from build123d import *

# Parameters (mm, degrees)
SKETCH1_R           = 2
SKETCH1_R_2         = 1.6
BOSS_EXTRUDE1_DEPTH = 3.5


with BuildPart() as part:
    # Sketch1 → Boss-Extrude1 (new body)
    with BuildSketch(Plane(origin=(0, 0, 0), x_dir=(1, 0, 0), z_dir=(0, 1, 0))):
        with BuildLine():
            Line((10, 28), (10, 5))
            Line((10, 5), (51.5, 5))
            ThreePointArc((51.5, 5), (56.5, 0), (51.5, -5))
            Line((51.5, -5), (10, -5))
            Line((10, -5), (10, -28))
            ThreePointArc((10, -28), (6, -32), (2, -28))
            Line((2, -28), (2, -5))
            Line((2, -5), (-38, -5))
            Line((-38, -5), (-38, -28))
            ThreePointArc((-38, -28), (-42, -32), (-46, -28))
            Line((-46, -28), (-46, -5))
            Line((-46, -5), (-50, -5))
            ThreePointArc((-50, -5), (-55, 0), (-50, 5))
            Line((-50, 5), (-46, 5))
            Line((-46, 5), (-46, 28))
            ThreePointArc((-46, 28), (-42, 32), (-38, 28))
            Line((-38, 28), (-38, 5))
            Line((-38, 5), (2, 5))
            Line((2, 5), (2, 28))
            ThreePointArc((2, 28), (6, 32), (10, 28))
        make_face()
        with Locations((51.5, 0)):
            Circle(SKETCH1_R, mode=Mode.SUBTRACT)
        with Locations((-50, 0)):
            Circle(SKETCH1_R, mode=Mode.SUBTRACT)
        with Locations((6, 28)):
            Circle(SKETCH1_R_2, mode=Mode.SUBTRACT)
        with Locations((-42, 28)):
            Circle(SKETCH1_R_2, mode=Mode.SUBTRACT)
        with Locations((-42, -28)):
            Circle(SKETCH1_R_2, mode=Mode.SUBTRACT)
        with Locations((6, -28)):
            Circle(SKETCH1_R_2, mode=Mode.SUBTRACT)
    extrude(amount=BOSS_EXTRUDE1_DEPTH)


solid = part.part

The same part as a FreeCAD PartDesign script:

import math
import FreeCAD as App
import Part
import Sketcher
from FreeCAD import Vector
Q = App.Units.Quantity

doc = App.newDocument("Part")
body = doc.addObject("PartDesign::Body", "Body")

sketch1 = doc.addObject("Sketcher::SketchObject", "Sketch")
body.addObject(sketch1)
sketch1.AttachmentSupport = (doc.XZ_Plane, [""])
sketch1.MapMode = "FlatFace"
sketch1.addGeometry(Part.LineSegment(Vector(10, -5, 0), Vector(10, -28, 0)), False)
sketch1.addGeometry(Part.ArcOfCircle(Part.Circle(Vector(6, -28, 0), Vector(0, 0, 1), 4), math.radians(180), math.radians(360)), False)
sketch1.addGeometry(Part.LineSegment(Vector(2, -28, 0), Vector(2, -5, 0)), False)
sketch1.addGeometry(Part.LineSegment(Vector(2, -5, 0), Vector(-38, -5, 0)), False)
sketch1.addGeometry(Part.LineSegment(Vector(-38, -5, 0), Vector(-38, -28, 0)), False)
sketch1.addGeometry(Part.ArcOfCircle(Part.Circle(Vector(-42, -28, 0), Vector(0, 0, 1), 4), math.radians(180), math.radians(360)), False)
sketch1.addGeometry(Part.LineSegment(Vector(-46, -28, 0), Vector(-46, -5, 0)), False)
sketch1.addGeometry(Part.LineSegment(Vector(-46, -5, 0), Vector(-50, -5, 0)), False)
sketch1.addGeometry(Part.ArcOfCircle(Part.Circle(Vector(-50, 0, 0), Vector(0, 0, 1), 5), math.radians(90), math.radians(270)), False)
sketch1.addGeometry(Part.LineSegment(Vector(-50, 5, 0), Vector(-46, 5, 0)), False)
sketch1.addGeometry(Part.LineSegment(Vector(-46, 5, 0), Vector(-46, 28, 0)), False)
sketch1.addGeometry(Part.ArcOfCircle(Part.Circle(Vector(-42, 28, 0), Vector(0, 0, 1), 4), math.radians(0), math.radians(180)), False)
sketch1.addGeometry(Part.LineSegment(Vector(-38, 28, 0), Vector(-38, 5, 0)), False)
sketch1.addGeometry(Part.LineSegment(Vector(-38, 5, 0), Vector(2, 5, 0)), False)
sketch1.addGeometry(Part.LineSegment(Vector(2, 5, 0), Vector(2, 28, 0)), False)
sketch1.addGeometry(Part.ArcOfCircle(Part.Circle(Vector(6, 28, 0), Vector(0, 0, 1), 4), math.radians(0), math.radians(180)), False)
sketch1.addGeometry(Part.LineSegment(Vector(10, 28, 0), Vector(10, 5, 0)), False)
sketch1.addGeometry(Part.LineSegment(Vector(10, 5, 0), Vector(51.5, 5, 0)), False)
sketch1.addGeometry(Part.ArcOfCircle(Part.Circle(Vector(51.5, 0, 0), Vector(0, 0, 1), 5), math.radians(-90), math.radians(90)), False)
sketch1.addGeometry(Part.LineSegment(Vector(51.5, -5, 0), Vector(10, -5, 0)), False)
sketch1.addGeometry(Part.Circle(Vector(6, 28, 0), Vector(0, 0, 1), 1.6), False)
sketch1.addGeometry(Part.Circle(Vector(51.5, 0, 0), Vector(0, 0, 1), 2), False)
sketch1.addGeometry(Part.Circle(Vector(-42, 28, 0), Vector(0, 0, 1), 1.6), False)
sketch1.addGeometry(Part.Circle(Vector(-50, 0, 0), Vector(0, 0, 1), 2), False)
sketch1.addGeometry(Part.Circle(Vector(6, -28, 0), Vector(0, 0, 1), 1.6), False)
sketch1.addGeometry(Part.Circle(Vector(-42, -28, 0), Vector(0, 0, 1), 1.6), False)
sketch1.addConstraint(Sketcher.Constraint("Tangent", 0, 2, 1, 2))
sketch1.addConstraint(Sketcher.Constraint("Tangent", 1, 1, 2, 1))
sketch1.addConstraint(Sketcher.Constraint("Coincident", 2, 2, 3, 1))
sketch1.addConstraint(Sketcher.Constraint("Coincident", 3, 2, 4, 1))
sketch1.addConstraint(Sketcher.Constraint("Tangent", 4, 2, 5, 2))
sketch1.addConstraint(Sketcher.Constraint("Tangent", 5, 1, 6, 1))
sketch1.addConstraint(Sketcher.Constraint("Coincident", 6, 2, 7, 1))
sketch1.addConstraint(Sketcher.Constraint("Tangent", 7, 2, 8, 2))
sketch1.addConstraint(Sketcher.Constraint("Tangent", 8, 1, 9, 1))
sketch1.addConstraint(Sketcher.Constraint("Coincident", 9, 2, 10, 1))
sketch1.addConstraint(Sketcher.Constraint("Tangent", 10, 2, 11, 2))
sketch1.addConstraint(Sketcher.Constraint("Tangent", 11, 1, 12, 1))
sketch1.addConstraint(Sketcher.Constraint("Coincident", 12, 2, 13, 1))
sketch1.addConstraint(Sketcher.Constraint("Coincident", 13, 2, 14, 1))
sketch1.addConstraint(Sketcher.Constraint("Tangent", 14, 2, 15, 2))
sketch1.addConstraint(Sketcher.Constraint("Tangent", 15, 1, 16, 1))
sketch1.addConstraint(Sketcher.Constraint("Coincident", 16, 2, 17, 1))
sketch1.addConstraint(Sketcher.Constraint("Tangent", 17, 2, 18, 2))
sketch1.addConstraint(Sketcher.Constraint("Tangent", 18, 1, 19, 1))
sketch1.addConstraint(Sketcher.Constraint("Coincident", 19, 2, 0, 1))
sketch1.addConstraint(Sketcher.Constraint("Vertical", 0))
sketch1.addConstraint(Sketcher.Constraint("Vertical", 2))
sketch1.addConstraint(Sketcher.Constraint("Horizontal", 3))
sketch1.addConstraint(Sketcher.Constraint("Vertical", 4))
sketch1.addConstraint(Sketcher.Constraint("Vertical", 6))
sketch1.addConstraint(Sketcher.Constraint("Horizontal", 7))
sketch1.addConstraint(Sketcher.Constraint("Horizontal", 9))
sketch1.addConstraint(Sketcher.Constraint("Vertical", 10))
sketch1.addConstraint(Sketcher.Constraint("Vertical", 12))
sketch1.addConstraint(Sketcher.Constraint("Horizontal", 13))
sketch1.addConstraint(Sketcher.Constraint("Vertical", 14))
sketch1.addConstraint(Sketcher.Constraint("Vertical", 16))
sketch1.addConstraint(Sketcher.Constraint("Horizontal", 17))
sketch1.addConstraint(Sketcher.Constraint("Horizontal", 19))
sketch1.addConstraint(Sketcher.Constraint("Coincident", 20, 3, 15, 3))
sketch1.addConstraint(Sketcher.Constraint("Coincident", 21, 3, 18, 3))
sketch1.addConstraint(Sketcher.Constraint("Coincident", 22, 3, 11, 3))
sketch1.addConstraint(Sketcher.Constraint("Coincident", 23, 3, 8, 3))
sketch1.addConstraint(Sketcher.Constraint("Coincident", 24, 3, 1, 3))
sketch1.addConstraint(Sketcher.Constraint("Coincident", 25, 3, 5, 3))
sketch1.addConstraint(Sketcher.Constraint("Equal", 1, 5))
sketch1.addConstraint(Sketcher.Constraint("Equal", 5, 11))
sketch1.addConstraint(Sketcher.Constraint("Equal", 11, 15))
sketch1.addConstraint(Sketcher.Constraint("Equal", 8, 18))
sketch1.addConstraint(Sketcher.Constraint("Equal", 20, 22))
sketch1.addConstraint(Sketcher.Constraint("Equal", 21, 23))
sketch1.addConstraint(Sketcher.Constraint("Equal", 22, 24))
sketch1.addConstraint(Sketcher.Constraint("Equal", 24, 25))
sketch1.addConstraint(Sketcher.Constraint("Symmetric", 5, 3, 11, 3, -1))
sketch1.addConstraint(Sketcher.Constraint("Symmetric", 1, 3, 15, 3, -1))
sketch1.addConstraint(Sketcher.Constraint("PointOnObject", 8, 3, -1))
sketch1.addConstraint(Sketcher.Constraint("PointOnObject", 18, 3, -1))
sketch1.addConstraint(Sketcher.Constraint("Horizontal", 1, 3, 5, 3))
sketch1.addConstraint(Sketcher.Constraint("Horizontal", 3, 2, 6, 2))
sketch1.addConstraint(Sketcher.Constraint("Horizontal", 9, 2, 12, 2))
sketch1.addConstraint(Sketcher.Constraint("Diameter", 21, Q("4 mm")))
sketch1.addConstraint(Sketcher.Constraint("Radius", 1, Q("4 mm")))
sketch1.addConstraint(Sketcher.Constraint("Radius", 8, Q("5 mm")))
sketch1.addConstraint(Sketcher.Constraint("Diameter", 20, Q("3.2 mm")))
sketch1.addConstraint(Sketcher.Constraint("DistanceX", 3, 2, 3, 1, Q("40 mm")))
sketch1.addConstraint(Sketcher.Constraint("DistanceX", 7, 2, 7, 1, Q("4 mm")))
sketch1.addConstraint(Sketcher.Constraint("DistanceY", 0, 2, 0, 1, Q("23 mm")))
sketch1.addConstraint(Sketcher.Constraint("DistanceX", 17, 1, 17, 2, Q("41.5 mm")))
sketch1.addConstraint(Sketcher.Constraint("DistanceX", -1, 1, 1, 3, Q("6 mm")))
pad1 = doc.addObject("PartDesign::Pad", "Pad")
body.addObject(pad1)
pad1.Profile = sketch1
pad1.Length = 3.5
pad1.Reversed = True

doc.recompute()
